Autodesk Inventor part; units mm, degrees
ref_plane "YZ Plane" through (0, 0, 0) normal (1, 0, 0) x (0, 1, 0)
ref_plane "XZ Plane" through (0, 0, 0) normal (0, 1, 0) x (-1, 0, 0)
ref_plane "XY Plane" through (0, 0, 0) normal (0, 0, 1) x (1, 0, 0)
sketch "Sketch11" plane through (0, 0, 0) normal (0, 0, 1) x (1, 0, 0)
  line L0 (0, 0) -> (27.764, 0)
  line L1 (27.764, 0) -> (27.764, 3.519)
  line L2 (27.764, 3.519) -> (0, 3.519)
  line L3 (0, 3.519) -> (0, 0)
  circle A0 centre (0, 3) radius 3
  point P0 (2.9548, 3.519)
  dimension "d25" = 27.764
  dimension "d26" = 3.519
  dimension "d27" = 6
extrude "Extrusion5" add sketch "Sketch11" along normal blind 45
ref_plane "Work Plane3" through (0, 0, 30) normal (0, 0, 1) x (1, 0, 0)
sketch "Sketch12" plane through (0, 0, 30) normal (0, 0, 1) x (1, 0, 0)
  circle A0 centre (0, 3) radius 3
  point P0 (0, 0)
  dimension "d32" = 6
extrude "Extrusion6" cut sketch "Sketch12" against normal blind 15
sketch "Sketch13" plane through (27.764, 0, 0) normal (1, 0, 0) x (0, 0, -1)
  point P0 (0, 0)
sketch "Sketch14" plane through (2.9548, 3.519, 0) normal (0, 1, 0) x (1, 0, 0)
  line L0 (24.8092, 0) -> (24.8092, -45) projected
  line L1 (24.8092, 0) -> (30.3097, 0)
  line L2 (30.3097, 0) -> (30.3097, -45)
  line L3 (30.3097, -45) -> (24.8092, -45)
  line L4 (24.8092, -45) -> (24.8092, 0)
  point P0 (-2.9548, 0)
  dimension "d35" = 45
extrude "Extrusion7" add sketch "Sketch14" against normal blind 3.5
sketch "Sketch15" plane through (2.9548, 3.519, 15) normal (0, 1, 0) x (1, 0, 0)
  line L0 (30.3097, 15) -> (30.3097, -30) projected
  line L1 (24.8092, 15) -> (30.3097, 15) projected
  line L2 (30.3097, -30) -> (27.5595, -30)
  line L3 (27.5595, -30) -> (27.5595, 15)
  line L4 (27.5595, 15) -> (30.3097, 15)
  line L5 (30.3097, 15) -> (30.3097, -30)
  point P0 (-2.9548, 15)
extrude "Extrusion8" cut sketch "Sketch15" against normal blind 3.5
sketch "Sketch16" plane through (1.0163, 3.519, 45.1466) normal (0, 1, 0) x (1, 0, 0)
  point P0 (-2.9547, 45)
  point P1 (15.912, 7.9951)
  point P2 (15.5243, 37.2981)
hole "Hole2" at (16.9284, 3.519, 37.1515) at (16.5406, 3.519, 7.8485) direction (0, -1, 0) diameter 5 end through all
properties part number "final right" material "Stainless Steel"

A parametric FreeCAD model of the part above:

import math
import FreeCAD as App
import Part
import Sketcher
from FreeCAD import Vector
Q = App.Units.Quantity

doc = App.newDocument("Part")
params = doc.addObject("Spreadsheet::Sheet", "Params")
for row, (alias, value) in enumerate([
    ("sketch1_radius", "3 mm"),
    ("pad1_length", "45 mm"),
    ("sketch2_diameter", "6 mm"),
    ("pocket1_length", "15 mm"),
    ("sketch3_height", "45 mm"),
    ("pad2_length", "3.5 mm"),
    ("sketch4_height", "45 mm"),
    ("pocket2_length", "3.5 mm"),
    ("sketch5_diameter", "5 mm"),
    ("hole_diameter", "5 mm"),
], start=1):
    params.set(f"A{row}", alias)
    params.set(f"B{row}", "=" + value)
    params.setAlias(f"B{row}", alias)

body = doc.addObject("PartDesign::Body", "Body")

# Sketch on XY plane
sketch1 = body.newObject("Sketcher::SketchObject", "Sketch")
sketch1.AttachmentSupport = (doc.getObject("XY_Plane"), [""])
sketch1.MapMode = "FlatFace"
sketch1.addGeometry([
    Part.LineSegment(Vector(27.8, 3.5, 0), Vector(3, 3.5, 0)),
    Part.ArcOfCircle(Part.Circle(Vector(0, 3, 0), Vector(0, 0, 1), 3), math.radians(10), math.radians(270)),
    Part.LineSegment(Vector(0, 0, 0), Vector(27.8, 0, 0)),
    Part.LineSegment(Vector(27.8, 0, 0), Vector(27.8, 3.5, 0)),
], False)
sketch1.addConstraint([
    Sketcher.Constraint("Coincident", 0, 2, 1, 1),
    Sketcher.Constraint("Tangent", 1, 2, 2, 1),
    Sketcher.Constraint("Coincident", 2, 2, 3, 1),
    Sketcher.Constraint("Coincident", 3, 2, 0, 1),
    Sketcher.Constraint("Horizontal", 0),
    Sketcher.Constraint("Horizontal", 2),
    Sketcher.Constraint("Vertical", 3),
    Sketcher.Constraint("Coincident", 1, 2, -1, 1),
    Sketcher.Constraint("Radius", 1, Q("3 mm")),
    Sketcher.Constraint("DistanceX", 2, 1, 2, 2, Q("27.764 mm")),
    Sketcher.Constraint("DistanceY", 3, 1, 3, 2, Q("3.519 mm")),
])
sketch1.setExpression("Constraints[8]", "Params.sketch1_radius")
pad1 = body.newObject("PartDesign::Pad", "Pad")
pad1.Profile = sketch1
pad1.setExpression("Length", "Params.pad1_length")

# Sketch on XY plane
sketch2 = body.newObject("Sketcher::SketchObject", "Sketch001")
sketch2.AttachmentSupport = (doc.getObject("XY_Plane"), [""])
sketch2.MapMode = "FlatFace"
sketch2.AttachmentOffset = App.Placement(Vector(0, 0, 30), App.Rotation())
sketch2.addGeometry(Part.Circle(Vector(0, 3, 0), Vector(0, 0, 1), 3), False)
sketch2.addConstraint([
    Sketcher.Constraint("PointOnObject", 0, 3, -2),
    Sketcher.Constraint("Diameter", 0, Q("6 mm")),
    Sketcher.Constraint("DistanceY", -1, 1, 0, 3, Q("3 mm")),
])
sketch2.setExpression("Constraints[1]", "Params.sketch2_diameter")
pocket1 = body.newObject("PartDesign::Pocket", "Pocket")
pocket1.Profile = sketch2
pocket1.setExpression("Length", "Params.pocket1_length")

# Sketch on XZ plane
sketch3 = body.newObject("Sketcher::SketchObject", "Sketch002")
sketch3.AttachmentSupport = (doc.getObject("XZ_Plane"), [""])
sketch3.MapMode = "FlatFace"
sketch3.AttachmentOffset = App.Placement(Vector(0, 0, -3.519), App.Rotation())
sketch3.addGeometry([
    Part.LineSegment(Vector(33, 0, 0), Vector(28, 0, 0)),
    Part.LineSegment(Vector(28, 0, 0), Vector(28, 45, 0)),
    Part.LineSegment(Vector(28, 45, 0), Vector(33, 45, 0)),
    Part.LineSegment(Vector(33, 45, 0), Vector(33, 0, 0)),
], False)
sketch3.addConstraint([
    Sketcher.Constraint("Coincident", 0, 2, 1, 1),
    Sketcher.Constraint("Coincident", 1, 2, 2, 1),
    Sketcher.Constraint("Coincident", 2, 2, 3, 1),
    Sketcher.Constraint("Coincident", 3, 2, 0, 1),
    Sketcher.Constraint("Horizontal", 0),
    Sketcher.Constraint("Vertical", 1),
    Sketcher.Constraint("Horizontal", 2),
    Sketcher.Constraint("Vertical", 3),
    Sketcher.Constraint("PointOnObject", 0, 2, -1),
    Sketcher.Constraint("DistanceY", 1, 1, 1, 2, Q("45 mm")),
    Sketcher.Constraint("DistanceX", 0, 2, 0, 1, Q("5.5005 mm")),
    Sketcher.Constraint("DistanceX", -1, 1, 0, 2, Q("27.764 mm")),
])
sketch3.setExpression("Constraints[9]", "Params.sketch3_height")
pad2 = body.newObject("PartDesign::Pad", "Pad001")
pad2.Profile = sketch3
pad2.setExpression("Length", "Params.pad2_length")

# Sketch on XZ plane
sketch4 = body.newObject("Sketcher::SketchObject", "Sketch003")
sketch4.AttachmentSupport = (doc.getObject("XZ_Plane"), [""])
sketch4.MapMode = "FlatFace"
sketch4.AttachmentOffset = App.Placement(Vector(0, 0, -3.519), App.Rotation())
sketch4.addGeometry([
    Part.LineSegment(Vector(33.3, 45, 0), Vector(33.3, 0, 0)),
    Part.LineSegment(Vector(33.3, 0, 0), Vector(30.5, 0, 0)),
    Part.LineSegment(Vector(30.5, 0, 0), Vector(30.5, 45, 0)),
    Part.LineSegment(Vector(30.5, 45, 0), Vector(33.3, 45, 0)),
], False)
sketch4.addConstraint([
    Sketcher.Constraint("Coincident", 0, 2, 1, 1),
    Sketcher.Constraint("Coincident", 1, 2, 2, 1),
    Sketcher.Constraint("Coincident", 2, 2, 3, 1),
    Sketcher.Constraint("Coincident", 3, 2, 0, 1),
    Sketcher.Constraint("Vertical", 0),
    Sketcher.Constraint("Horizontal", 1),
    Sketcher.Constraint("Vertical", 2),
    Sketcher.Constraint("Horizontal", 3),
    Sketcher.Constraint("PointOnObject", 0, 2, -1),
    Sketcher.Constraint("DistanceY", 0, 2, 0, 1, Q("45 mm")),
    Sketcher.Constraint("DistanceX", 1, 2, 1, 1, Q("2.7502 mm")),
    Sketcher.Constraint("DistanceX", -1, 1, 0, 2, Q("33.2645 mm")),
])
sketch4.setExpression("Constraints[9]", "Params.sketch4_height")
pocket2 = body.newObject("PartDesign::Pocket", "Pocket001")
pocket2.Profile = sketch4
pocket2.setExpression("Length", "Params.pocket2_length")
pocket2.Reversed = True

# Sketch on XZ plane
sketch5 = body.newObject("Sketcher::SketchObject", "Sketch004")
sketch5.AttachmentSupport = (doc.getObject("XZ_Plane"), [""])
sketch5.MapMode = "FlatFace"
sketch5.AttachmentOffset = App.Placement(Vector(0, 0, -3.519), App.Rotation())
sketch5.addGeometry([
    Part.Circle(Vector(16.9, 37.2, 0), Vector(0, 0, 1), 2.5),
    Part.Circle(Vector(16.5, 7.8, 0), Vector(0, 0, 1), 2.5),
], False)
sketch5.addConstraint([
    Sketcher.Constraint("Equal", 0, 1),
    Sketcher.Constraint("Diameter", 0, Q("5 mm")),
    Sketcher.Constraint("DistanceY", 1, 3, 0, 3, Q("29.303 mm")),
    Sketcher.Constraint("DistanceX", -1, 1, 0, 3, Q("16.9284 mm")),
    Sketcher.Constraint("DistanceY", -1, 1, 0, 3, Q("37.1515 mm")),
    Sketcher.Constraint("DistanceX", -1, 1, 1, 3, Q("16.5406 mm")),
])
sketch5.setExpression("Constraints[1]", "Params.sketch5_diameter")
doc.recompute()
hole = body.newObject("PartDesign::Hole", "Hole")
hole.Profile = sketch5
hole.ThreadType = "None"
hole.setExpression("Diameter", "Params.hole_diameter")
hole.DepthType = "ThroughAll"
hole.Reversed = True

doc.recompute()
